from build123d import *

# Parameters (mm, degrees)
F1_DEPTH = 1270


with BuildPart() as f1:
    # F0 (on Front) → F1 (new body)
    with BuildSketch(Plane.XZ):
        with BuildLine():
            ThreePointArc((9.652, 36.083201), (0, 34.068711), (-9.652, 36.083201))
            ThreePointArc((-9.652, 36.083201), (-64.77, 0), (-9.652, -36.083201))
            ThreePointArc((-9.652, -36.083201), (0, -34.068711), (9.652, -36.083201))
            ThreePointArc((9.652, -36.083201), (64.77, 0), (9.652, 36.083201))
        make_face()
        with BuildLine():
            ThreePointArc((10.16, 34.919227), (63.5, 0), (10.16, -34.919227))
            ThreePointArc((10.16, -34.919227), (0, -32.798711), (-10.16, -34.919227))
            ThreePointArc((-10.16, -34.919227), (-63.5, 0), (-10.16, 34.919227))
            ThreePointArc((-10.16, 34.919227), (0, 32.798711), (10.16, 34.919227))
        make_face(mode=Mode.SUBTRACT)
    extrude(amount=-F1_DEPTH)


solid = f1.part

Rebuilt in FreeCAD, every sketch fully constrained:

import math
import FreeCAD as App
import Part
import Sketcher
from FreeCAD import Vector
Q = App.Units.Quantity

doc = App.newDocument("Part")
body = doc.addObject("PartDesign::Body", "Body")

# Sketch on XZ plane
sketch1 = body.newObject("Sketcher::SketchObject", "Sketch")
sketch1.AttachmentSupport = (doc.getObject("XZ_Plane"), [""])
sketch1.MapMode = "FlatFace"
sketch1.addGeometry([
    Part.ArcOfCircle(Part.Circle(Vector(0, 58, 0), Vector(0, 0, 1), 24), math.radians(-114), math.radians(-66)),  # 0
    Part.ArcOfCircle(Part.Circle(Vector(-25, 0, 0), Vector(0, 0, 1), 39), math.radians(66), math.radians(294)),  # 1
    Part.ArcOfCircle(Part.Circle(Vector(0, -58, 0), Vector(0, 0, 1), 24), math.radians(66), math.radians(114)),  # 2
    Part.ArcOfCircle(Part.Circle(Vector(25, 0, 0), Vector(0, 0, 1), 39), math.radians(-114), math.radians(114)),  # 3
    Part.ArcOfCircle(Part.Circle(Vector(0, 58, 0), Vector(0, 0, 1), 25), math.radians(-114), math.radians(-66)),  # 4
    Part.ArcOfCircle(Part.Circle(Vector(25, 0, 0), Vector(0, 0, 1), 38), math.radians(-114), math.radians(114)),  # 5
    Part.ArcOfCircle(Part.Circle(Vector(0, -58, 0), Vector(0, 0, 1), 25), math.radians(66), math.radians(114)),  # 6
    Part.ArcOfCircle(Part.Circle(Vector(-25, 0, 0), Vector(0, 0, 1), 38), math.radians(66), math.radians(294)),  # 7
], False)
sketch1.addConstraint([
    Sketcher.Constraint("Tangent", 0, 1, 1, 1),
    Sketcher.Constraint("Tangent", 1, 2, 2, 2),
    Sketcher.Constraint("Tangent", 2, 1, 3, 1),
    Sketcher.Constraint("Tangent", 3, 2, 0, 2),
    Sketcher.Constraint("Tangent", 4, 2, 5, 2),
    Sketcher.Constraint("Tangent", 5, 1, 6, 1),
    Sketcher.Constraint("Tangent", 6, 2, 7, 2),
    Sketcher.Constraint("Tangent", 7, 1, 4, 1),
    Sketcher.Constraint("Coincident", 4, 3, 0, 3),
    Sketcher.Constraint("Coincident", 5, 3, 3, 3),
    Sketcher.Constraint("Coincident", 6, 3, 2, 3),
    Sketcher.Constraint("Equal", 0, 2),
    Sketcher.Constraint("Equal", 1, 3),
    Sketcher.Constraint("Equal", 5, 7),
    Sketcher.Constraint("Symmetric", 0, 3, 2, 3, -1, 1),
    Sketcher.Constraint("PointOnObject", 0, 3, -2),
    Sketcher.Constraint("Radius", 5, Q("1.5 in")),
    Sketcher.Constraint("Radius", 0, Q("0.9499999 in")),
    Sketcher.Constraint("Radius", 1, Q("1.55 in")),
    Sketcher.Constraint("DistanceX", 1, 3, -1, 1, Q("1 in")),
])
pad1 = body.newObject("PartDesign::Pad", "Pad")
pad1.Profile = sketch1
pad1.Length = Q("50 in")
pad1.Reversed = True

doc.recompute()
